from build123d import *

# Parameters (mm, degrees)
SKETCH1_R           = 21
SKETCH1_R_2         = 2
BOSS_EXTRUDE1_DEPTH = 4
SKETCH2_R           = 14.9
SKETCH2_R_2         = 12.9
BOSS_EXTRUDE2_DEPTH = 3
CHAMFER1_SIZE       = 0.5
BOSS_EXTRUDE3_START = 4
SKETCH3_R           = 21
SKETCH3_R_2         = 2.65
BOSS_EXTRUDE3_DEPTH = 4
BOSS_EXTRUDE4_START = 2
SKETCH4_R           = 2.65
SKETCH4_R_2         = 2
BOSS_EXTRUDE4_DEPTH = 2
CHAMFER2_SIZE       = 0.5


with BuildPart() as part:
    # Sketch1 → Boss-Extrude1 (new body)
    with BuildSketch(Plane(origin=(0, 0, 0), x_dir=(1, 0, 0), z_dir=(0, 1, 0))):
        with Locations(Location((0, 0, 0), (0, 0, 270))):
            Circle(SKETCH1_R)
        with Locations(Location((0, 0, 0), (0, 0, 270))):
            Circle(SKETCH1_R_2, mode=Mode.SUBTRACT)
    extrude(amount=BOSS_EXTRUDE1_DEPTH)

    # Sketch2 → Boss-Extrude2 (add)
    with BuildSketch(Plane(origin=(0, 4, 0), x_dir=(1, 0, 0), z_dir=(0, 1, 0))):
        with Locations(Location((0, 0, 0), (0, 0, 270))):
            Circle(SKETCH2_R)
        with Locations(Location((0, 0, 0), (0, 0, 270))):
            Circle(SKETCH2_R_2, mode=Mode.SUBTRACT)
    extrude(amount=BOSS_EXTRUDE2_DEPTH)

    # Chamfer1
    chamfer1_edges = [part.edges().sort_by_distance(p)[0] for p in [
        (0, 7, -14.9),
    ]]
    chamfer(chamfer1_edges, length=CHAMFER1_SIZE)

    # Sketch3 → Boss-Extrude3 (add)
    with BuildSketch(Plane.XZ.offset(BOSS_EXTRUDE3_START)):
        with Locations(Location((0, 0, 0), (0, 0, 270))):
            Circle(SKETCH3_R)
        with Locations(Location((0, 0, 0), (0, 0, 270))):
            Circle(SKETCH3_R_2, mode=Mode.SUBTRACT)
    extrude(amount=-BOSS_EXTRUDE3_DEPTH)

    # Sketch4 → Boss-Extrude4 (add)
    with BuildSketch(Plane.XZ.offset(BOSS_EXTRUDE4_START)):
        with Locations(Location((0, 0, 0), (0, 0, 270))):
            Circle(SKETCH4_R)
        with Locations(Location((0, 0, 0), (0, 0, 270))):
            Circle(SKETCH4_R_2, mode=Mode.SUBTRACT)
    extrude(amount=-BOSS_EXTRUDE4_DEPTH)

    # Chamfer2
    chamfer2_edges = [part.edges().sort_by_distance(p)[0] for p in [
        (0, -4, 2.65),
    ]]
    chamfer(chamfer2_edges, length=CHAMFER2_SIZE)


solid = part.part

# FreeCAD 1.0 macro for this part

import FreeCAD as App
import Part
import Sketcher
from FreeCAD import Vector


def edges_at(feature, points):
    """Names of the edges that pass closest to the given points."""
    edges = feature.Shape.Edges
    near = lambda p: min(range(len(edges)), key=lambda i: edges[i].distToShape(Part.Vertex(*p))[0])
    return sorted({f"Edge{near(p) + 1}" for p in points})

doc = App.newDocument("Part")
body = doc.addObject("PartDesign::Body", "Body")

# Sketch on XZ plane
sketch1 = body.newObject("Sketcher::SketchObject", "Sketch")
sketch1.AttachmentSupport = (doc.getObject("XZ_Plane"), [""])
sketch1.MapMode = "FlatFace"
sketch1.addGeometry([
    Part.Circle(Vector(0, 0, 0), Vector(0, 0, 1), 21),
    Part.Circle(Vector(0, 0, 0), Vector(0, 0, 1), 2),
], False)
sketch1.addConstraint([
    Sketcher.Constraint("Coincident", 0, 3, -1, 1),
    Sketcher.Constraint("Coincident", 1, 3, -1, 1),
    Sketcher.Constraint("Diameter", 0, 42.0),
    Sketcher.Constraint("Diameter", 1, 4.0),
])
pad1 = body.newObject("PartDesign::Pad", "Pad")
pad1.Profile = sketch1
pad1.Length = 4
pad1.Reversed = True

# Sketch on XZ plane
sketch2 = body.newObject("Sketcher::SketchObject", "Sketch001")
sketch2.AttachmentSupport = (doc.getObject("XZ_Plane"), [""])
sketch2.MapMode = "FlatFace"
sketch2.AttachmentOffset = App.Placement(Vector(0, 0, -4), App.Rotation())
sketch2.addGeometry([
    Part.Circle(Vector(0, 0, 0), Vector(0, 0, 1), 15),
    Part.Circle(Vector(0, 0, 0), Vector(0, 0, 1), 13),
], False)
sketch2.addConstraint([
    Sketcher.Constraint("Coincident", 0, 3, -1, 1),
    Sketcher.Constraint("Coincident", 1, 3, -1, 1),
    Sketcher.Constraint("Diameter", 0, 29.8),
    Sketcher.Constraint("Diameter", 1, 25.8),
])
pad2 = body.newObject("PartDesign::Pad", "Pad001")
pad2.Profile = sketch2
pad2.Length = 3
pad2.Reversed = True
doc.recompute()

chamfer = body.newObject("PartDesign::Chamfer", "Chamfer")
chamfer.Base = (pad2, edges_at(pad2, [(0, 7, -14.9)]))
chamfer.Size = 0.5

# Sketch on XZ plane
sketch3 = body.newObject("Sketcher::SketchObject", "Sketch002")
sketch3.AttachmentSupport = (doc.getObject("XZ_Plane"), [""])
sketch3.MapMode = "FlatFace"
sketch3.AttachmentOffset = App.Placement(Vector(0, 0, 4), App.Rotation())
sketch3.addGeometry([
    Part.Circle(Vector(0, 0, 0), Vector(0, 0, 1), 21),
    Part.Circle(Vector(0, 0, 0), Vector(0, 0, 1), 2.6),
], False)
sketch3.addConstraint([
    Sketcher.Constraint("Coincident", 0, 3, -1, 1),
    Sketcher.Constraint("Coincident", 1, 3, -1, 1),
    Sketcher.Constraint("Diameter", 0, 42.0),
    Sketcher.Constraint("Diameter", 1, 5.3),
])
pad3 = body.newObject("PartDesign::Pad", "Pad002")
pad3.Profile = sketch3
pad3.Length = 4
pad3.Reversed = True

# Sketch on XZ plane
sketch4 = body.newObject("Sketcher::SketchObject", "Sketch003")
sketch4.AttachmentSupport = (doc.getObject("XZ_Plane"), [""])
sketch4.MapMode = "FlatFace"
sketch4.AttachmentOffset = App.Placement(Vector(0, 0, 2), App.Rotation())
sketch4.addGeometry([
    Part.Circle(Vector(0, 0, 0), Vector(0, 0, 1), 2.6),
    Part.Circle(Vector(0, 0, 0), Vector(0, 0, 1), 2),
], False)
sketch4.addConstraint([
    Sketcher.Constraint("Coincident", 0, 3, -1, 1),
    Sketcher.Constraint("Coincident", 1, 3, -1, 1),
    Sketcher.Constraint("Diameter", 1, 4.0),
    Sketcher.Constraint("Diameter", 0, 5.3),
])
pad4 = body.newObject("PartDesign::Pad", "Pad003")
pad4.Profile = sketch4
pad4.Length = 2
pad4.Reversed = True
doc.recompute()

chamfer2 = body.newObject("PartDesign::Chamfer", "Chamfer001")
chamfer2.Base = (pad4, edges_at(pad4, [(0, -4, 2.65)]))
chamfer2.Size = 0.5

doc.recompute()
